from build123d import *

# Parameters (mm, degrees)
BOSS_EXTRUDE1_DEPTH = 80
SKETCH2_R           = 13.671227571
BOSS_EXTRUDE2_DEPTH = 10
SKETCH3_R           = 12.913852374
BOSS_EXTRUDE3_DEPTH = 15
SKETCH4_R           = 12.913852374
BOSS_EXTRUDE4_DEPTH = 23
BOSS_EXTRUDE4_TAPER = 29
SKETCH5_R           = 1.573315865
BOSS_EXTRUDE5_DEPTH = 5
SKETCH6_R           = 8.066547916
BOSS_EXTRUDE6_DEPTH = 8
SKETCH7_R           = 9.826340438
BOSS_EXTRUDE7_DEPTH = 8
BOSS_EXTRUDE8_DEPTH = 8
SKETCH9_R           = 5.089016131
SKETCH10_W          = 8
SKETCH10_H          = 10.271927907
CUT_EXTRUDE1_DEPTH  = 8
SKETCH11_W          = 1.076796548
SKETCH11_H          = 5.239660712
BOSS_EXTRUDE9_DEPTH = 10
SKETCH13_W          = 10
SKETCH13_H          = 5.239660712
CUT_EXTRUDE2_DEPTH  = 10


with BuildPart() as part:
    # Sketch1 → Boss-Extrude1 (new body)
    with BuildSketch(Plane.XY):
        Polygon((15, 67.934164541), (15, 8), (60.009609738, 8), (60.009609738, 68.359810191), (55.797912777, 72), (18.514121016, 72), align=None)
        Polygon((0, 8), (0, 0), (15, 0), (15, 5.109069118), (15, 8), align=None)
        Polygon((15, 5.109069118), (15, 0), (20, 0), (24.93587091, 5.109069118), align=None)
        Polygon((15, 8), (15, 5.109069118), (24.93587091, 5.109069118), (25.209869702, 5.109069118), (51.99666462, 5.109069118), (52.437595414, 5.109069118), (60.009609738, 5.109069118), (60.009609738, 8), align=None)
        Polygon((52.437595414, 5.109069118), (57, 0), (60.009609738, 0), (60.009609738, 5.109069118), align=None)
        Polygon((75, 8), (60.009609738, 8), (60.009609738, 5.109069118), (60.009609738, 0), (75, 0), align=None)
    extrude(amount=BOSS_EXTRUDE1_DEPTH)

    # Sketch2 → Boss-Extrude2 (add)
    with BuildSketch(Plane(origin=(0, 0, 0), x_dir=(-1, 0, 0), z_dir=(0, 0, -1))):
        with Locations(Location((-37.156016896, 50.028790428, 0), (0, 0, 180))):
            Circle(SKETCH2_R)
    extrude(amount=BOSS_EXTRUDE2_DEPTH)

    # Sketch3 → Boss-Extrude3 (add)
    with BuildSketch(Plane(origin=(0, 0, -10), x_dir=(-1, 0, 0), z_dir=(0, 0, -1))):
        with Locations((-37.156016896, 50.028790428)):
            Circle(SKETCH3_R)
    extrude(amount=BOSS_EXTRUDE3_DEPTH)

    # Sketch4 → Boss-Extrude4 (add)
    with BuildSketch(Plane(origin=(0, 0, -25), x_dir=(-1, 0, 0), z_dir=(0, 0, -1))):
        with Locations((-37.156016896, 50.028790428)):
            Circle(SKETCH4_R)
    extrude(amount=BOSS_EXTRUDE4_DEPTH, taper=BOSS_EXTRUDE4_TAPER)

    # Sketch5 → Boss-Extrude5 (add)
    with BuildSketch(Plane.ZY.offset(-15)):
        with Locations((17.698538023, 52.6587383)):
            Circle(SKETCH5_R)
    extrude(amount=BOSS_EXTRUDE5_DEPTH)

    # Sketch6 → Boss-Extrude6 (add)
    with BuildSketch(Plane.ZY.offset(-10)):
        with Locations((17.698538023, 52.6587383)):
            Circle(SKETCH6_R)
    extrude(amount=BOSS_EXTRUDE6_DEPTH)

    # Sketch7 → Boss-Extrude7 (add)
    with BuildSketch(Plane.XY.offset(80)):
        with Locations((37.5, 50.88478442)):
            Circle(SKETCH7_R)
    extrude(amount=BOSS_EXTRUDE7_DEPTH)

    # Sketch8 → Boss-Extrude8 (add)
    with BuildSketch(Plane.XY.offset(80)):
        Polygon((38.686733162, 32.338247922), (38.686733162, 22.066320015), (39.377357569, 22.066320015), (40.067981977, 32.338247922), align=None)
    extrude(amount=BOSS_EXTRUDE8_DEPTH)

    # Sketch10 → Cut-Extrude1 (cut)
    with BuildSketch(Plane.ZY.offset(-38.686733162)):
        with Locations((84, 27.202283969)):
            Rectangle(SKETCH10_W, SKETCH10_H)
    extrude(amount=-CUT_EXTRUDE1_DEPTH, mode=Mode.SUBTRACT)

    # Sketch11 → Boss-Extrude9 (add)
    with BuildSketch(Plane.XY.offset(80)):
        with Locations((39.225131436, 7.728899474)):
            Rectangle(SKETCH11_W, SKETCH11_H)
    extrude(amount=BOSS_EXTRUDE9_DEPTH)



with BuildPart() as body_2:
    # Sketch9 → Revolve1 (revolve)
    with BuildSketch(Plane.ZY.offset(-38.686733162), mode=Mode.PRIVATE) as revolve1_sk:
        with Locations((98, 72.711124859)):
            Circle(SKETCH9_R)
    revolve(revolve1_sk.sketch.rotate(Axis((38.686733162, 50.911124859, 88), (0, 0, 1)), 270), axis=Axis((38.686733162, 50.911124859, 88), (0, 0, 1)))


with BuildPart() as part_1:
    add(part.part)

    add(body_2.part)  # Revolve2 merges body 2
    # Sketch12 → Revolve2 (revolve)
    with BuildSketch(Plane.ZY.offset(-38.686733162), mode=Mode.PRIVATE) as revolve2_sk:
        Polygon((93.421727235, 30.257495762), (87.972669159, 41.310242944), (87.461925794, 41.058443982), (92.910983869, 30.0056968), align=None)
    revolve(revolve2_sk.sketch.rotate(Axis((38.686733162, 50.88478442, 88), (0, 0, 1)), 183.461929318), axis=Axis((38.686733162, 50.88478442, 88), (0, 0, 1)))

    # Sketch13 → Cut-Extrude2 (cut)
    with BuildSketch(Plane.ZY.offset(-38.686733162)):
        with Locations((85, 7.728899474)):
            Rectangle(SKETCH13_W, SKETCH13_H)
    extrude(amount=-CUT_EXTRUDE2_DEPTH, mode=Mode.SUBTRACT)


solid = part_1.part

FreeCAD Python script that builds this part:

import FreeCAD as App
import Part
import Sketcher


def add_polygon(sketch, points):
    """Adds a closed chain of lines whose ends are joined by coincident constraints."""
    first, n = sketch.GeometryCount, len(points)
    for a, b in zip(points, points[1:] + points[:1]):
        sketch.addGeometry(Part.LineSegment(App.Vector(*a, 0), App.Vector(*b, 0)), False)
    for i in range(n):
        sketch.addConstraint(Sketcher.Constraint("Coincident", first + i, 2, first + (i + 1) % n, 1))

doc = App.newDocument("Part")
body = doc.addObject("PartDesign::Body", "Body")

# Sketch on XY plane
sketch1 = doc.addObject("Sketcher::SketchObject", "Sketch")
body.addObject(sketch1)
sketch1.AttachmentSupport = (doc.XY_Plane, [""])
sketch1.MapMode = "FlatFace"
add_polygon(sketch1, [(15, 68), (15, 8), (0, 8), (0, 0), (20, 0), (25, 5), (52, 5), (57, 0), (75, 0), (75, 8), (60, 8), (60, 68), (56, 72), (19, 72)])  # lines 0-13
sketch1.addConstraint([
    Sketcher.Constraint("Vertical", 0),
    Sketcher.Constraint("Horizontal", 1),
    Sketcher.Constraint("Vertical", 2),
    Sketcher.Constraint("Horizontal", 3),
    Sketcher.Constraint("Horizontal", 5),
    Sketcher.Constraint("Horizontal", 7),
    Sketcher.Constraint("Vertical", 8),
    Sketcher.Constraint("Horizontal", 9),
    Sketcher.Constraint("Vertical", 10),
    Sketcher.Constraint("Horizontal", 12),
    Sketcher.Constraint("Coincident", 2, 2, -1, 1),
    Sketcher.Constraint("PointOnObject", 6, 2, -1),
    Sketcher.Constraint("Perpendicular", 11, 13),
    Sketcher.Constraint("Horizontal", 1, 2, 8, 2),
    Sketcher.Constraint("DistanceX", 1, 2, 1, 1, 15.0),
    Sketcher.Constraint("DistanceX", 3, 1, 3, 2, 20.0),
    Sketcher.Constraint("DistanceX", 7, 1, 7, 2, 18.0),
    Sketcher.Constraint("DistanceY", 2, 2, 2, 1, 8.0),
    Sketcher.Constraint("DistanceX", -1, 1, 6, 2, 57.0),
    Sketcher.Constraint("DistanceY", -1, 1, 11, 2, 72.0),
    Sketcher.Constraint("Distance", 4, 7.103901),
    Sketcher.Constraint("DistanceX", 9, 2, 9, 1, 14.99039),
    Sketcher.Constraint("DistanceX", 12, 2, 12, 1, 37.283792),
    Sketcher.Constraint("DistanceY", 10, 1, 10, 2, 60.35981),
    Sketcher.Constraint("Distance", 6, 6.84968),
    Sketcher.Constraint("Distance", 11, 5.56681),
    Sketcher.Constraint("DistanceX", 5, 1, 5, 2, 27.501725),
])
pad1 = doc.addObject("PartDesign::Pad", "Pad")
body.addObject(pad1)
pad1.Profile = sketch1
pad1.Length = 80

# Sketch on XY plane
sketch2 = doc.addObject("Sketcher::SketchObject", "Sketch001")
body.addObject(sketch2)
sketch2.AttachmentSupport = (doc.XY_Plane, [""])
sketch2.MapMode = "FlatFace"
sketch2.addGeometry(Part.Circle(App.Vector(37, 50, 0), App.Vector(0, 0, 1), 14), False)
sketch2.addConstraint([
    Sketcher.Constraint("Diameter", 0, 27.342455),
    Sketcher.Constraint("DistanceY", -1, 1, 0, 3, 50.02879),
    Sketcher.Constraint("DistanceX", -1, 1, 0, 3, 37.156017),
])
pad2 = doc.addObject("PartDesign::Pad", "Pad001")
body.addObject(pad2)
pad2.Profile = sketch2
pad2.Length = 10
pad2.Reversed = True

# Sketch on XY plane
sketch3 = doc.addObject("Sketcher::SketchObject", "Sketch002")
body.addObject(sketch3)
sketch3.AttachmentSupport = (doc.XY_Plane, [""])
sketch3.MapMode = "FlatFace"
sketch3.AttachmentOffset = App.Placement(App.Vector(0, 0, -10), App.Rotation())
sketch3.addGeometry(Part.Circle(App.Vector(37, 50, 0), App.Vector(0, 0, 1), 13), False)
sketch3.addConstraint([
    Sketcher.Constraint("Diameter", 0, 25.827705),
    Sketcher.Constraint("DistanceY", -1, 1, 0, 3, 50.02879),
    Sketcher.Constraint("DistanceX", -1, 1, 0, 3, 37.156017),
])
pad3 = doc.addObject("PartDesign::Pad", "Pad002")
body.addObject(pad3)
pad3.Profile = sketch3
pad3.Length = 15
pad3.Reversed = True

# Sketch on XY plane
sketch4 = doc.addObject("Sketcher::SketchObject", "Sketch003")
body.addObject(sketch4)
sketch4.AttachmentSupport = (doc.XY_Plane, [""])
sketch4.MapMode = "FlatFace"
sketch4.AttachmentOffset = App.Placement(App.Vector(0, 0, -25), App.Rotation())
sketch4.addGeometry(Part.Circle(App.Vector(37, 50, 0), App.Vector(0, 0, 1), 13), False)
sketch4.addConstraint([
    Sketcher.Constraint("Diameter", 0, 25.827705),
    Sketcher.Constraint("DistanceY", -1, 1, 0, 3, 50.02879),
    Sketcher.Constraint("DistanceX", -1, 1, 0, 3, 37.156017),
])
pad4 = doc.addObject("PartDesign::Pad", "Pad003")
body.addObject(pad4)
pad4.Profile = sketch4
pad4.Length = 23
pad4.Reversed = True
pad4.TaperAngle = -29

# Sketch on YZ plane
sketch5 = doc.addObject("Sketcher::SketchObject", "Sketch004")
body.addObject(sketch5)
sketch5.AttachmentSupport = (doc.YZ_Plane, [""])
sketch5.MapMode = "FlatFace"
sketch5.AttachmentOffset = App.Placement(App.Vector(0, 0, 15), App.Rotation())
sketch5.addGeometry(Part.Circle(App.Vector(52.7, 17.7, 0), App.Vector(0, 0, 1), 1.6), False)
sketch5.addConstraint([
    Sketcher.Constraint("Diameter", 0, 3.146632),
    Sketcher.Constraint("DistanceX", -1, 1, 0, 3, 52.658738),
    Sketcher.Constraint("DistanceY", -1, 1, 0, 3, 17.698538),
])
pad5 = doc.addObject("PartDesign::Pad", "Pad004")
body.addObject(pad5)
pad5.Profile = sketch5
pad5.Length = 5
pad5.Reversed = True

# Sketch on YZ plane
sketch6 = doc.addObject("Sketcher::SketchObject", "Sketch005")
body.addObject(sketch6)
sketch6.AttachmentSupport = (doc.YZ_Plane, [""])
sketch6.MapMode = "FlatFace"
sketch6.AttachmentOffset = App.Placement(App.Vector(0, 0, 10), App.Rotation())
sketch6.addGeometry(Part.Circle(App.Vector(53, 18, 0), App.Vector(0, 0, 1), 8), False)
sketch6.addConstraint([
    Sketcher.Constraint("Diameter", 0, 16.133096),
    Sketcher.Constraint("DistanceX", -1, 1, 0, 3, 52.658738),
    Sketcher.Constraint("DistanceY", -1, 1, 0, 3, 17.698538),
])
pad6 = doc.addObject("PartDesign::Pad", "Pad005")
body.addObject(pad6)
pad6.Profile = sketch6
pad6.Length = 8
pad6.Reversed = True

# Sketch on XY plane
sketch7 = doc.addObject("Sketcher::SketchObject", "Sketch006")
body.addObject(sketch7)
sketch7.AttachmentSupport = (doc.XY_Plane, [""])
sketch7.MapMode = "FlatFace"
sketch7.AttachmentOffset = App.Placement(App.Vector(0, 0, 80), App.Rotation())
sketch7.addGeometry(Part.Circle(App.Vector(38, 51, 0), App.Vector(0, 0, 1), 10), False)
sketch7.addConstraint([
    Sketcher.Constraint("DistanceX", -1, 1, 0, 3, 37.5),
    Sketcher.Constraint("Diameter", 0, 19.652681),
    Sketcher.Constraint("DistanceY", -1, 1, 0, 3, 50.884784),
])
pad7 = doc.addObject("PartDesign::Pad", "Pad006")
body.addObject(pad7)
pad7.Profile = sketch7
pad7.Length = 8

# Sketch on XY plane
sketch8 = doc.addObject("Sketcher::SketchObject", "Sketch007")
body.addObject(sketch8)
sketch8.AttachmentSupport = (doc.XY_Plane, [""])
sketch8.MapMode = "FlatFace"
sketch8.AttachmentOffset = App.Placement(App.Vector(0, 0, 80), App.Rotation())
add_polygon(sketch8, [(38.7, 32.3), (38.7, 22.1), (39.4, 22.1), (40.1, 32.3)])  # lines 0-3
sketch8.addConstraint([
    Sketcher.Constraint("Vertical", 0),
    Sketcher.Constraint("Horizontal", 1),
    Sketcher.Constraint("Horizontal", 3),
    Sketcher.Constraint("DistanceX", 3, 2, 3, 1, 1.381249),
    Sketcher.Constraint("Distance", 2, 10.295119),
    Sketcher.Constraint("DistanceX", 1, 1, 1, 2, 0.690624),
    Sketcher.Constraint("DistanceY", -1, 1, 0, 2, 22.06632),
    Sketcher.Constraint("DistanceX", -1, 1, 2, 2, 40.067982),
])
pad8 = doc.addObject("PartDesign::Pad", "Pad007")
body.addObject(pad8)
pad8.Profile = sketch8
pad8.Length = 8

# Sketch on YZ plane
sketch9 = doc.addObject("Sketcher::SketchObject", "Sketch008")
body.addObject(sketch9)
sketch9.AttachmentSupport = (doc.YZ_Plane, [""])
sketch9.MapMode = "FlatFace"
sketch9.AttachmentOffset = App.Placement(App.Vector(0, 0, 38.686733), App.Rotation())
add_polygon(sketch9, [(32, 80), (22, 80), (22, 88), (32, 88)])  # lines 0-3
sketch9.addConstraint([
    Sketcher.Constraint("Horizontal", 0),
    Sketcher.Constraint("Vertical", 1),
    Sketcher.Constraint("Horizontal", 2),
    Sketcher.Constraint("Vertical", 3),
    Sketcher.Constraint("DistanceY", 1, 1, 1, 2, 8.0),
    Sketcher.Constraint("DistanceY", -1, 1, 0, 2, 80.0),
    Sketcher.Constraint("DistanceX", 0, 2, 0, 1, 10.271928),
    Sketcher.Constraint("DistanceX", -1, 1, 0, 2, 22.06632),
])
pocket1 = doc.addObject("PartDesign::Pocket", "Pocket")
body.addObject(pocket1)
pocket1.Profile = sketch9
pocket1.Length = 8
pocket1.Reversed = True

# Sketch on XY plane
sketch10 = doc.addObject("Sketcher::SketchObject", "Sketch009")
body.addObject(sketch10)
sketch10.AttachmentSupport = (doc.XY_Plane, [""])
sketch10.MapMode = "FlatFace"
sketch10.AttachmentOffset = App.Placement(App.Vector(0, 0, 80), App.Rotation())
add_polygon(sketch10, [(38.7, 10.3), (38.7, 5.1), (39.8, 5.1), (39.8, 10.3)])  # lines 0-3
sketch10.addConstraint([
    Sketcher.Constraint("Vertical", 0),
    Sketcher.Constraint("Horizontal", 1),
    Sketcher.Constraint("Vertical", 2),
    Sketcher.Constraint("Horizontal", 3),
    Sketcher.Constraint("DistanceY", 0, 2, 0, 1, 5.239661),
    Sketcher.Constraint("DistanceX", 1, 1, 1, 2, 1.076797),
    Sketcher.Constraint("DistanceY", -1, 1, 0, 2, 5.109069),
    Sketcher.Constraint("DistanceX", -1, 1, 1, 2, 39.76353),
])
pad9 = doc.addObject("PartDesign::Pad", "Pad008")
body.addObject(pad9)
pad9.Profile = sketch10
pad9.Length = 10
body2 = doc.addObject("PartDesign::Body", "Body001")

# Sketch on YZ plane
sketch11 = doc.addObject("Sketcher::SketchObject", "Sketch010")
body2.addObject(sketch11)
sketch11.AttachmentSupport = (doc.getObject("YZ_Plane001"), [""])
sketch11.MapMode = "FlatFace"
sketch11.AttachmentOffset = App.Placement(App.Vector(0, 0, 38.686733), App.Rotation())
sketch11.addGeometry(Part.Circle(App.Vector(73, 98, 0), App.Vector(0, 0, 1), 5), False)
sketch11.addGeometry(Part.LineSegment(App.Vector(51, 98, 0), App.Vector(51, 108, 0)), True)  # axis
sketch11.addConstraint([
    Sketcher.Constraint("Vertical", 1),
    Sketcher.Constraint("Horizontal", 0, 3, 1, 1),
    Sketcher.Constraint("DistanceY", 1, 1, 1, 2, 10.0),
    Sketcher.Constraint("DistanceY", -1, 1, 0, 3, 98.0),
    Sketcher.Constraint("DistanceX", 1, 1, 0, 3, 21.8),
    Sketcher.Constraint("Diameter", 0, 10.178032),
    Sketcher.Constraint("DistanceX", -1, 1, 0, 3, 72.711125),
])
revolution = doc.addObject("PartDesign::Revolution", "Revolution")
body2.addObject(revolution)
revolution.Profile = sketch11
revolution.ReferenceAxis = (sketch11, ["Axis0"])
revolution.Angle = 360
body.AllowCompound = True
doc.recompute()

boolean = doc.addObject("PartDesign::Boolean", "Boolean")
body.addObject(boolean)
boolean.Type = "Fuse"
boolean.addObjects([body2])

# Sketch on YZ plane
sketch12 = doc.addObject("Sketcher::SketchObject", "Sketch011")
body.addObject(sketch12)
sketch12.AttachmentSupport = (doc.YZ_Plane, [""])
sketch12.MapMode = "FlatFace"
sketch12.AttachmentOffset = App.Placement(App.Vector(0, 0, 38.686733), App.Rotation())
add_polygon(sketch12, [(30.3, 93.4), (41.3, 88), (41.1, 87.5), (30, 92.9)])  # lines 0-3
sketch12.addGeometry(Part.LineSegment(App.Vector(50.9, 87.5, 0), App.Vector(50.9, 93.4, 0)), True)  # axis
sketch12.addConstraint([
    Sketcher.Constraint("Vertical", 4),
    Sketcher.Constraint("Perpendicular", 0, 1),
    Sketcher.Constraint("Perpendicular", 1, 2),
    Sketcher.Constraint("Perpendicular", 2, 3),
    Sketcher.Constraint("Horizontal", 1, 2, 4, 1),
    Sketcher.Constraint("Horizontal", 3, 2, 4, 2),
    Sketcher.Constraint("DistanceY", 4, 1, 4, 2, 5.959801),
    Sketcher.Constraint("DistanceX", 1, 2, 0, 2, 0.251799),
    Sketcher.Constraint("Distance", 1, 0.56944),
    Sketcher.Constraint("DistanceY", -1, 1, 0, 2, 87.972669),
    Sketcher.Constraint("DistanceX", 0, 2, 4, 1, 9.574541),
    Sketcher.Constraint("DistanceX", -1, 1, 0, 2, 41.310243),
])
revolution2 = doc.addObject("PartDesign::Revolution", "Revolution001")
body.addObject(revolution2)
revolution2.Profile = sketch12
revolution2.ReferenceAxis = (sketch12, ["Axis0"])
revolution2.Angle = 360

# Sketch on YZ plane
sketch13 = doc.addObject("Sketcher::SketchObject", "Sketch012")
body.addObject(sketch13)
sketch13.AttachmentSupport = (doc.YZ_Plane, [""])
sketch13.MapMode = "FlatFace"
sketch13.AttachmentOffset = App.Placement(App.Vector(0, 0, 38.686733), App.Rotation())
add_polygon(sketch13, [(10, 80), (5, 80), (5, 90), (10, 90)])  # lines 0-3
sketch13.addConstraint([
    Sketcher.Constraint("Horizontal", 0),
    Sketcher.Constraint("Vertical", 1),
    Sketcher.Constraint("Horizontal", 2),
    Sketcher.Constraint("Vertical", 3),
    Sketcher.Constraint("DistanceY", 1, 1, 1, 2, 10.0),
    Sketcher.Constraint("DistanceY", -1, 1, 0, 2, 80.0),
    Sketcher.Constraint("DistanceX", 0, 2, 0, 1, 5.239661),
    Sketcher.Constraint("DistanceX", -1, 1, 0, 2, 5.109069),
])
pocket2 = doc.addObject("PartDesign::Pocket", "Pocket001")
body.addObject(pocket2)
pocket2.Profile = sketch13
pocket2.Length = 10
pocket2.Reversed = True

doc.recompute()
